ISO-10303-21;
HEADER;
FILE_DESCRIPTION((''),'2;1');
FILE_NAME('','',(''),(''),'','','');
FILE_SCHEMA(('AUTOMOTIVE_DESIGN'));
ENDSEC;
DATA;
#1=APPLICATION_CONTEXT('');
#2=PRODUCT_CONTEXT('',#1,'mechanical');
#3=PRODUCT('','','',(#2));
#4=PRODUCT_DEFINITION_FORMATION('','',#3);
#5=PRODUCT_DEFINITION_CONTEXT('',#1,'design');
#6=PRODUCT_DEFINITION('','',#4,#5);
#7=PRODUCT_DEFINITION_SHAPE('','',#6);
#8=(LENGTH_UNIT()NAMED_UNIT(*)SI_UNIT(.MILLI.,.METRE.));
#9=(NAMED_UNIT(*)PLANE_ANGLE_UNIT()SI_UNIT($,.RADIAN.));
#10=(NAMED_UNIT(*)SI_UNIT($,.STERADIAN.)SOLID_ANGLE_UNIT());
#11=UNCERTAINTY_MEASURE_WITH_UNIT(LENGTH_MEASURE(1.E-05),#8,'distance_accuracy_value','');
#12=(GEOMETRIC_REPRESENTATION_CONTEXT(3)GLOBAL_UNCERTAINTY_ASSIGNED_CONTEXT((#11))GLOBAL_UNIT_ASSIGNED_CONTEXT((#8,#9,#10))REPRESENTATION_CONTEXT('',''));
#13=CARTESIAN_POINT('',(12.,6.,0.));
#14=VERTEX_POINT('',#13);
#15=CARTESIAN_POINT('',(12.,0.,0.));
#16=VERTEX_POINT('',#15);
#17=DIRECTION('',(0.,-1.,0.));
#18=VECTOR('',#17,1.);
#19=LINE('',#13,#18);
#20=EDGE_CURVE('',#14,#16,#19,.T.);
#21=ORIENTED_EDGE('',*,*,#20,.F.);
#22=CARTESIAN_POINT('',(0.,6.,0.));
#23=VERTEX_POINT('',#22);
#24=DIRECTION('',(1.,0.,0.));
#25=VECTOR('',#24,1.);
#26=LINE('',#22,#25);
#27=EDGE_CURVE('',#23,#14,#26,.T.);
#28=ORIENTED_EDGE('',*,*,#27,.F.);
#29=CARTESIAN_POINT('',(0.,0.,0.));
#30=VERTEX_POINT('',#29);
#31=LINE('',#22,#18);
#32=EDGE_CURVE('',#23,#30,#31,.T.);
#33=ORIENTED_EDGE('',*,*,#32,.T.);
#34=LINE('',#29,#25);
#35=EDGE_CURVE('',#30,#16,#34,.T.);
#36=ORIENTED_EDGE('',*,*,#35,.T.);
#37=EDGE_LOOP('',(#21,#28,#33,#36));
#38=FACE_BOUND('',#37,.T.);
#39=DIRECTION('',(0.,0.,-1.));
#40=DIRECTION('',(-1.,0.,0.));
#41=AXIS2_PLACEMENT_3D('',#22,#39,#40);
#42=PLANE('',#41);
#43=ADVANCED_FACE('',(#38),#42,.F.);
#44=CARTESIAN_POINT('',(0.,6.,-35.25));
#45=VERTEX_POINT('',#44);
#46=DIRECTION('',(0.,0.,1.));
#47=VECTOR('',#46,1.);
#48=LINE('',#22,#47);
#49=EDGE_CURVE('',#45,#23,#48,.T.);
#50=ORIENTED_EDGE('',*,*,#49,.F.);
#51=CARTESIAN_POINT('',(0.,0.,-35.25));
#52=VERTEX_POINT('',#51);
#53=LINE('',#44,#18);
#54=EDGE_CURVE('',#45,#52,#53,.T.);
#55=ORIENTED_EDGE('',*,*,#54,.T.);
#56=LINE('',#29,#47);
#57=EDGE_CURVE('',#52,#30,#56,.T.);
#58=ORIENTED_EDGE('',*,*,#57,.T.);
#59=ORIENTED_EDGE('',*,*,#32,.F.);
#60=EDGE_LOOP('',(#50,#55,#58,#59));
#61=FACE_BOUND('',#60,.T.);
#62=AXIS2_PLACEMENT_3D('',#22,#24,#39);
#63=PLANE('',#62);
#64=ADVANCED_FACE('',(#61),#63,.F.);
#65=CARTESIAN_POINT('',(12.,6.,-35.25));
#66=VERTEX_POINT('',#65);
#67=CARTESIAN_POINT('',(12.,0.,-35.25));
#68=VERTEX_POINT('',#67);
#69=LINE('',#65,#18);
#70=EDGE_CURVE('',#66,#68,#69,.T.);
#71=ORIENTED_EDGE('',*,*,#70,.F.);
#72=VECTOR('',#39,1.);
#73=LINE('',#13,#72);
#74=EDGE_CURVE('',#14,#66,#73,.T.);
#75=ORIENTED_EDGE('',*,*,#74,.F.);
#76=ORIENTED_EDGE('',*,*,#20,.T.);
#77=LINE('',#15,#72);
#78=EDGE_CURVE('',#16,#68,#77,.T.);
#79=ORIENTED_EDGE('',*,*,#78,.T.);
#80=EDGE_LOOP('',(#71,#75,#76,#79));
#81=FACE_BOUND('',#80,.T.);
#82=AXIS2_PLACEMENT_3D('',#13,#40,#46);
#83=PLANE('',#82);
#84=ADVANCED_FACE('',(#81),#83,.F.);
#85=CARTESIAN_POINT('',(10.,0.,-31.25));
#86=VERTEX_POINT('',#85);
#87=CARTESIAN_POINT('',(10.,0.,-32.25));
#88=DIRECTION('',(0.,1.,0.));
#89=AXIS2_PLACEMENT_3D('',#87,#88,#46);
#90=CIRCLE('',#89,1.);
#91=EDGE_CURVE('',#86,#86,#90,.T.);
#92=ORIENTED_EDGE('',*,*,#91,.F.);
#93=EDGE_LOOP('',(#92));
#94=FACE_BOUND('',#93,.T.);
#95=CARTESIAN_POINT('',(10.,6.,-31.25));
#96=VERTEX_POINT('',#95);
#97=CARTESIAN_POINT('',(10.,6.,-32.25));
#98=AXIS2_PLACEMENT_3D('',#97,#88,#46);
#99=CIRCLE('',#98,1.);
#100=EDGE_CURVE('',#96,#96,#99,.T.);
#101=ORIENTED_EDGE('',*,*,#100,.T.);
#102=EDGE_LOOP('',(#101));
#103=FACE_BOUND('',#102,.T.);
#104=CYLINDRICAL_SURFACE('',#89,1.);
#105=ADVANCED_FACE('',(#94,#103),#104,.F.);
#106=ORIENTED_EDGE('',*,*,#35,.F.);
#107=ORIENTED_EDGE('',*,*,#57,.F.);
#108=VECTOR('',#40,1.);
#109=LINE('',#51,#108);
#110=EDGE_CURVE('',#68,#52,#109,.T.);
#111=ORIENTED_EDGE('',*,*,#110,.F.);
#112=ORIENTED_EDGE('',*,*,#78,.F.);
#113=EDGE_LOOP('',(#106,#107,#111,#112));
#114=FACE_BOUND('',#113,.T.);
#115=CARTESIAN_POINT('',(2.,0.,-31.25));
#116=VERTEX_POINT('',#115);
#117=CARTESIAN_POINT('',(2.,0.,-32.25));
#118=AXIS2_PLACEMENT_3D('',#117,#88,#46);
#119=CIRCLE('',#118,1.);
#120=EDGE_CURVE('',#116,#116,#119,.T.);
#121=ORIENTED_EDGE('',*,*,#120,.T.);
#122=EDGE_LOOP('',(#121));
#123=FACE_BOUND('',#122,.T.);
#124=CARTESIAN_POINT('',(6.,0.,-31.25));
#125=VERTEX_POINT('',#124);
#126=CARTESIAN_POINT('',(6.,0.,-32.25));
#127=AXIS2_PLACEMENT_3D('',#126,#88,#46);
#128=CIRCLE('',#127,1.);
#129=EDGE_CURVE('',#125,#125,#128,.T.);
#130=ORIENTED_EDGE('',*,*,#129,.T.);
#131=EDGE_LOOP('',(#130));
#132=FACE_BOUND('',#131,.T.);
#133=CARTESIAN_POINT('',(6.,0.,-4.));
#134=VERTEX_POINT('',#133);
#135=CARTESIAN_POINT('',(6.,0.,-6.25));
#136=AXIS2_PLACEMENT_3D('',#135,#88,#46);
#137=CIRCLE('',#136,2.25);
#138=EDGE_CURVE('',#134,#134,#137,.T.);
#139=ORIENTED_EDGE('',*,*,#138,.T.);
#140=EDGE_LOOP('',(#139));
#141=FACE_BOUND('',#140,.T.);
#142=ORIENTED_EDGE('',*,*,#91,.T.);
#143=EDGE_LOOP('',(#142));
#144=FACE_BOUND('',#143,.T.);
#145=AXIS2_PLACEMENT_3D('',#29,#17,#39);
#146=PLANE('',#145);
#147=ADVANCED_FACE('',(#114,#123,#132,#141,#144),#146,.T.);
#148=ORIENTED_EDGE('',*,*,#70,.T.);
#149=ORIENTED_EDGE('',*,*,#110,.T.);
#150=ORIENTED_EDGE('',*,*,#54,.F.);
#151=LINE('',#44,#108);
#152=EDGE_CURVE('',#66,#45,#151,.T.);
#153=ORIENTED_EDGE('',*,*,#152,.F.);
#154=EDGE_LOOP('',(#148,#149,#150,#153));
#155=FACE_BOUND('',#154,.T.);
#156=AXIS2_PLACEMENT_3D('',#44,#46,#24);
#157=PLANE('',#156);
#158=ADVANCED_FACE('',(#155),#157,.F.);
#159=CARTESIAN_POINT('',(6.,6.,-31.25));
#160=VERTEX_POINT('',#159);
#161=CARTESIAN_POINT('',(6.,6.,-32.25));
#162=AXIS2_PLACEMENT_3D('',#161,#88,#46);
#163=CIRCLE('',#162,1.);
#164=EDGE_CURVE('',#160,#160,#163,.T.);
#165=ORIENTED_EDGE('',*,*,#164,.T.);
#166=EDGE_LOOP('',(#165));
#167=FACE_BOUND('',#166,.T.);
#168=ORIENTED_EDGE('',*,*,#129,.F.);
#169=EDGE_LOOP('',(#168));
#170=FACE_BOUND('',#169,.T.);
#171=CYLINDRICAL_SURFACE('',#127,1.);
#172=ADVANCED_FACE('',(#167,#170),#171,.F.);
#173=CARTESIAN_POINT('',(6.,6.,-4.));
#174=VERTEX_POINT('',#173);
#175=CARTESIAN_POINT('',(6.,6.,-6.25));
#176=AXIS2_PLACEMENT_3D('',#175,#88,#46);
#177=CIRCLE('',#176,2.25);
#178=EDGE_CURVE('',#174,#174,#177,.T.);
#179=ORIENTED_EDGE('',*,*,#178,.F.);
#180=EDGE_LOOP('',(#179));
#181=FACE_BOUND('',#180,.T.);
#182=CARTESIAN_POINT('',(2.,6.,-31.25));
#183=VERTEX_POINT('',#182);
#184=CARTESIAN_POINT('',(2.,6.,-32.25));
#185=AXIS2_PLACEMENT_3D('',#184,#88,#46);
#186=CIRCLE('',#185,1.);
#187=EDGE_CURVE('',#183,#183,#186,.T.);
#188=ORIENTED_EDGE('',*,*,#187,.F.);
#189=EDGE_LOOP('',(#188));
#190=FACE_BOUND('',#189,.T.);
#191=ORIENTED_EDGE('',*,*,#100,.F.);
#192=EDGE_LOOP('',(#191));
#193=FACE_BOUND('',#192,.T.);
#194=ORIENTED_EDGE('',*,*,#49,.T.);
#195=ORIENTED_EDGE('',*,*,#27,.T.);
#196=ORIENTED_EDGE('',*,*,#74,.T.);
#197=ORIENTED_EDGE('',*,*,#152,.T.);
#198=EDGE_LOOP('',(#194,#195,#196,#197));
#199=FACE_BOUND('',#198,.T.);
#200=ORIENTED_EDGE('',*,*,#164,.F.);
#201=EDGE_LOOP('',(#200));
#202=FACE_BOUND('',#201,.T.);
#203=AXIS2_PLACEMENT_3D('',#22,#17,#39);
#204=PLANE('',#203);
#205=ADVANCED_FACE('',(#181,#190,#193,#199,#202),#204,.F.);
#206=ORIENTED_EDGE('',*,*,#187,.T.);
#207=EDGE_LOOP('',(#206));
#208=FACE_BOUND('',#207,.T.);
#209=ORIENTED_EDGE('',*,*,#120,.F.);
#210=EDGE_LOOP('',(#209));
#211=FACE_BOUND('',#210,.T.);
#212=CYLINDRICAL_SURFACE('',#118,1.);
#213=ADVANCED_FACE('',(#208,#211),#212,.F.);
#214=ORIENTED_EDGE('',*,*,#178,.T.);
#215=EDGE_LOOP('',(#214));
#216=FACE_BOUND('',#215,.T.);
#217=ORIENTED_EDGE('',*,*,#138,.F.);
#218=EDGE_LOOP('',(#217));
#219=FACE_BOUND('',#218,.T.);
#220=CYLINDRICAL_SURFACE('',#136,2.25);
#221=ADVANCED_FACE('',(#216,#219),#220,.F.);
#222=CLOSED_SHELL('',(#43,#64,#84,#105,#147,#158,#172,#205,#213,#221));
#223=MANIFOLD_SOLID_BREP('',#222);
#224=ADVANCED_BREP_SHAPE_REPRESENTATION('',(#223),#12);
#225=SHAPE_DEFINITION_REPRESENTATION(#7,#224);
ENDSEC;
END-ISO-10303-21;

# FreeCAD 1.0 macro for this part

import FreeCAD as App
import Part
import Sketcher
Q = App.Units.Quantity

doc = App.newDocument("Part")
params = doc.addObject("Spreadsheet::Sheet", "Params")
for row, (alias, value) in enumerate([
    ("sketch1_width", "12 mm"),
    ("sketch1_height", "35.25 mm"),
    ("pad1_length", "6 mm"),
    ("sketch2_diameter", "2 mm"),
    ("sketch2_diameter2", "4.5 mm"),
], start=1):
    params.set(f"A{row}", alias)
    params.set(f"B{row}", "=" + value)
    params.setAlias(f"B{row}", alias)

body = doc.addObject("PartDesign::Body", "Body")

# Sketch on XZ plane
sketch1 = body.newObject("Sketcher::SketchObject", "Sketch")
sketch1.AttachmentSupport = (doc.getObject("XZ_Plane"), [""])
sketch1.MapMode = "FlatFace"
sketch1.addGeometry([
    Part.LineSegment(App.Vector(0, -35, 0), App.Vector(0, 0, 0)),
    Part.LineSegment(App.Vector(0, 0, 0), App.Vector(12, 0, 0)),
    Part.LineSegment(App.Vector(12, 0, 0), App.Vector(12, -35, 0)),
    Part.LineSegment(App.Vector(12, -35, 0), App.Vector(0, -35, 0)),
], False)
sketch1.addConstraint([
    Sketcher.Constraint("Coincident", 0, 2, 1, 1),
    Sketcher.Constraint("Coincident", 1, 2, 2, 1),
    Sketcher.Constraint("Coincident", 2, 2, 3, 1),
    Sketcher.Constraint("Coincident", 3, 2, 0, 1),
    Sketcher.Constraint("Vertical", 0),
    Sketcher.Constraint("Horizontal", 1),
    Sketcher.Constraint("Vertical", 2),
    Sketcher.Constraint("Horizontal", 3),
    Sketcher.Constraint("Coincident", 0, 2, -1, 1),
    Sketcher.Constraint("DistanceX", 1, 1, 1, 2, Q("12 mm")),
    Sketcher.Constraint("DistanceY", 0, 1, 0, 2, Q("35.25 mm")),
])
sketch1.setExpression("Constraints[9]", "Params.sketch1_width")
sketch1.setExpression("Constraints[10]", "Params.sketch1_height")
pad1 = body.newObject("PartDesign::Pad", "Pad")
pad1.Profile = sketch1
pad1.setExpression("Length", "Params.pad1_length")
pad1.Reversed = True

# Sketch on XZ plane
sketch2 = body.newObject("Sketcher::SketchObject", "Sketch001")
sketch2.AttachmentSupport = (doc.getObject("XZ_Plane"), [""])
sketch2.MapMode = "FlatFace"
sketch2.AttachmentOffset = App.Placement(App.Vector(0, 0, -6), App.Rotation())
sketch2.addGeometry([
    Part.Circle(App.Vector(10, -32.2, 0), App.Vector(0, 0, 1), 1),
    Part.Circle(App.Vector(6, -6.2, 0), App.Vector(0, 0, 1), 2.2),
    Part.Circle(App.Vector(2, -32.2, 0), App.Vector(0, 0, 1), 1),
    Part.Circle(App.Vector(6, -32.2, 0), App.Vector(0, 0, 1), 1),
], False)
sketch2.addConstraint([
    Sketcher.Constraint("Equal", 0, 2),
    Sketcher.Constraint("Equal", 2, 3),
    Sketcher.Constraint("Horizontal", 0, 3, 2, 3),
    Sketcher.Constraint("Horizontal", 2, 3, 3, 3),
    Sketcher.Constraint("Vertical", 1, 3, 3, 3),
    Sketcher.Constraint("Diameter", 0, Q("2 mm")),
    Sketcher.Constraint("Diameter", 1, Q("4.5 mm")),
    Sketcher.Constraint("DistanceX", -1, 1, 0, 3, Q("10 mm")),
    Sketcher.Constraint("DistanceX", -1, 1, 1, 3, Q("6 mm")),
    Sketcher.Constraint("DistanceX", -1, 1, 2, 3, Q("2 mm")),
    Sketcher.Constraint("DistanceY", 0, 3, 1, 3, Q("26 mm")),
    Sketcher.Constraint("DistanceY", 0, 3, -1, 1, Q("32.25 mm")),
])
sketch2.setExpression("Constraints[5]", "Params.sketch2_diameter")
sketch2.setExpression("Constraints[6]", "Params.sketch2_diameter2")
pocket1 = body.newObject("PartDesign::Pocket", "Pocket")
pocket1.Profile = sketch2
pocket1.Type = "ThroughAll"
pocket1.Reversed = True

doc.recompute()
